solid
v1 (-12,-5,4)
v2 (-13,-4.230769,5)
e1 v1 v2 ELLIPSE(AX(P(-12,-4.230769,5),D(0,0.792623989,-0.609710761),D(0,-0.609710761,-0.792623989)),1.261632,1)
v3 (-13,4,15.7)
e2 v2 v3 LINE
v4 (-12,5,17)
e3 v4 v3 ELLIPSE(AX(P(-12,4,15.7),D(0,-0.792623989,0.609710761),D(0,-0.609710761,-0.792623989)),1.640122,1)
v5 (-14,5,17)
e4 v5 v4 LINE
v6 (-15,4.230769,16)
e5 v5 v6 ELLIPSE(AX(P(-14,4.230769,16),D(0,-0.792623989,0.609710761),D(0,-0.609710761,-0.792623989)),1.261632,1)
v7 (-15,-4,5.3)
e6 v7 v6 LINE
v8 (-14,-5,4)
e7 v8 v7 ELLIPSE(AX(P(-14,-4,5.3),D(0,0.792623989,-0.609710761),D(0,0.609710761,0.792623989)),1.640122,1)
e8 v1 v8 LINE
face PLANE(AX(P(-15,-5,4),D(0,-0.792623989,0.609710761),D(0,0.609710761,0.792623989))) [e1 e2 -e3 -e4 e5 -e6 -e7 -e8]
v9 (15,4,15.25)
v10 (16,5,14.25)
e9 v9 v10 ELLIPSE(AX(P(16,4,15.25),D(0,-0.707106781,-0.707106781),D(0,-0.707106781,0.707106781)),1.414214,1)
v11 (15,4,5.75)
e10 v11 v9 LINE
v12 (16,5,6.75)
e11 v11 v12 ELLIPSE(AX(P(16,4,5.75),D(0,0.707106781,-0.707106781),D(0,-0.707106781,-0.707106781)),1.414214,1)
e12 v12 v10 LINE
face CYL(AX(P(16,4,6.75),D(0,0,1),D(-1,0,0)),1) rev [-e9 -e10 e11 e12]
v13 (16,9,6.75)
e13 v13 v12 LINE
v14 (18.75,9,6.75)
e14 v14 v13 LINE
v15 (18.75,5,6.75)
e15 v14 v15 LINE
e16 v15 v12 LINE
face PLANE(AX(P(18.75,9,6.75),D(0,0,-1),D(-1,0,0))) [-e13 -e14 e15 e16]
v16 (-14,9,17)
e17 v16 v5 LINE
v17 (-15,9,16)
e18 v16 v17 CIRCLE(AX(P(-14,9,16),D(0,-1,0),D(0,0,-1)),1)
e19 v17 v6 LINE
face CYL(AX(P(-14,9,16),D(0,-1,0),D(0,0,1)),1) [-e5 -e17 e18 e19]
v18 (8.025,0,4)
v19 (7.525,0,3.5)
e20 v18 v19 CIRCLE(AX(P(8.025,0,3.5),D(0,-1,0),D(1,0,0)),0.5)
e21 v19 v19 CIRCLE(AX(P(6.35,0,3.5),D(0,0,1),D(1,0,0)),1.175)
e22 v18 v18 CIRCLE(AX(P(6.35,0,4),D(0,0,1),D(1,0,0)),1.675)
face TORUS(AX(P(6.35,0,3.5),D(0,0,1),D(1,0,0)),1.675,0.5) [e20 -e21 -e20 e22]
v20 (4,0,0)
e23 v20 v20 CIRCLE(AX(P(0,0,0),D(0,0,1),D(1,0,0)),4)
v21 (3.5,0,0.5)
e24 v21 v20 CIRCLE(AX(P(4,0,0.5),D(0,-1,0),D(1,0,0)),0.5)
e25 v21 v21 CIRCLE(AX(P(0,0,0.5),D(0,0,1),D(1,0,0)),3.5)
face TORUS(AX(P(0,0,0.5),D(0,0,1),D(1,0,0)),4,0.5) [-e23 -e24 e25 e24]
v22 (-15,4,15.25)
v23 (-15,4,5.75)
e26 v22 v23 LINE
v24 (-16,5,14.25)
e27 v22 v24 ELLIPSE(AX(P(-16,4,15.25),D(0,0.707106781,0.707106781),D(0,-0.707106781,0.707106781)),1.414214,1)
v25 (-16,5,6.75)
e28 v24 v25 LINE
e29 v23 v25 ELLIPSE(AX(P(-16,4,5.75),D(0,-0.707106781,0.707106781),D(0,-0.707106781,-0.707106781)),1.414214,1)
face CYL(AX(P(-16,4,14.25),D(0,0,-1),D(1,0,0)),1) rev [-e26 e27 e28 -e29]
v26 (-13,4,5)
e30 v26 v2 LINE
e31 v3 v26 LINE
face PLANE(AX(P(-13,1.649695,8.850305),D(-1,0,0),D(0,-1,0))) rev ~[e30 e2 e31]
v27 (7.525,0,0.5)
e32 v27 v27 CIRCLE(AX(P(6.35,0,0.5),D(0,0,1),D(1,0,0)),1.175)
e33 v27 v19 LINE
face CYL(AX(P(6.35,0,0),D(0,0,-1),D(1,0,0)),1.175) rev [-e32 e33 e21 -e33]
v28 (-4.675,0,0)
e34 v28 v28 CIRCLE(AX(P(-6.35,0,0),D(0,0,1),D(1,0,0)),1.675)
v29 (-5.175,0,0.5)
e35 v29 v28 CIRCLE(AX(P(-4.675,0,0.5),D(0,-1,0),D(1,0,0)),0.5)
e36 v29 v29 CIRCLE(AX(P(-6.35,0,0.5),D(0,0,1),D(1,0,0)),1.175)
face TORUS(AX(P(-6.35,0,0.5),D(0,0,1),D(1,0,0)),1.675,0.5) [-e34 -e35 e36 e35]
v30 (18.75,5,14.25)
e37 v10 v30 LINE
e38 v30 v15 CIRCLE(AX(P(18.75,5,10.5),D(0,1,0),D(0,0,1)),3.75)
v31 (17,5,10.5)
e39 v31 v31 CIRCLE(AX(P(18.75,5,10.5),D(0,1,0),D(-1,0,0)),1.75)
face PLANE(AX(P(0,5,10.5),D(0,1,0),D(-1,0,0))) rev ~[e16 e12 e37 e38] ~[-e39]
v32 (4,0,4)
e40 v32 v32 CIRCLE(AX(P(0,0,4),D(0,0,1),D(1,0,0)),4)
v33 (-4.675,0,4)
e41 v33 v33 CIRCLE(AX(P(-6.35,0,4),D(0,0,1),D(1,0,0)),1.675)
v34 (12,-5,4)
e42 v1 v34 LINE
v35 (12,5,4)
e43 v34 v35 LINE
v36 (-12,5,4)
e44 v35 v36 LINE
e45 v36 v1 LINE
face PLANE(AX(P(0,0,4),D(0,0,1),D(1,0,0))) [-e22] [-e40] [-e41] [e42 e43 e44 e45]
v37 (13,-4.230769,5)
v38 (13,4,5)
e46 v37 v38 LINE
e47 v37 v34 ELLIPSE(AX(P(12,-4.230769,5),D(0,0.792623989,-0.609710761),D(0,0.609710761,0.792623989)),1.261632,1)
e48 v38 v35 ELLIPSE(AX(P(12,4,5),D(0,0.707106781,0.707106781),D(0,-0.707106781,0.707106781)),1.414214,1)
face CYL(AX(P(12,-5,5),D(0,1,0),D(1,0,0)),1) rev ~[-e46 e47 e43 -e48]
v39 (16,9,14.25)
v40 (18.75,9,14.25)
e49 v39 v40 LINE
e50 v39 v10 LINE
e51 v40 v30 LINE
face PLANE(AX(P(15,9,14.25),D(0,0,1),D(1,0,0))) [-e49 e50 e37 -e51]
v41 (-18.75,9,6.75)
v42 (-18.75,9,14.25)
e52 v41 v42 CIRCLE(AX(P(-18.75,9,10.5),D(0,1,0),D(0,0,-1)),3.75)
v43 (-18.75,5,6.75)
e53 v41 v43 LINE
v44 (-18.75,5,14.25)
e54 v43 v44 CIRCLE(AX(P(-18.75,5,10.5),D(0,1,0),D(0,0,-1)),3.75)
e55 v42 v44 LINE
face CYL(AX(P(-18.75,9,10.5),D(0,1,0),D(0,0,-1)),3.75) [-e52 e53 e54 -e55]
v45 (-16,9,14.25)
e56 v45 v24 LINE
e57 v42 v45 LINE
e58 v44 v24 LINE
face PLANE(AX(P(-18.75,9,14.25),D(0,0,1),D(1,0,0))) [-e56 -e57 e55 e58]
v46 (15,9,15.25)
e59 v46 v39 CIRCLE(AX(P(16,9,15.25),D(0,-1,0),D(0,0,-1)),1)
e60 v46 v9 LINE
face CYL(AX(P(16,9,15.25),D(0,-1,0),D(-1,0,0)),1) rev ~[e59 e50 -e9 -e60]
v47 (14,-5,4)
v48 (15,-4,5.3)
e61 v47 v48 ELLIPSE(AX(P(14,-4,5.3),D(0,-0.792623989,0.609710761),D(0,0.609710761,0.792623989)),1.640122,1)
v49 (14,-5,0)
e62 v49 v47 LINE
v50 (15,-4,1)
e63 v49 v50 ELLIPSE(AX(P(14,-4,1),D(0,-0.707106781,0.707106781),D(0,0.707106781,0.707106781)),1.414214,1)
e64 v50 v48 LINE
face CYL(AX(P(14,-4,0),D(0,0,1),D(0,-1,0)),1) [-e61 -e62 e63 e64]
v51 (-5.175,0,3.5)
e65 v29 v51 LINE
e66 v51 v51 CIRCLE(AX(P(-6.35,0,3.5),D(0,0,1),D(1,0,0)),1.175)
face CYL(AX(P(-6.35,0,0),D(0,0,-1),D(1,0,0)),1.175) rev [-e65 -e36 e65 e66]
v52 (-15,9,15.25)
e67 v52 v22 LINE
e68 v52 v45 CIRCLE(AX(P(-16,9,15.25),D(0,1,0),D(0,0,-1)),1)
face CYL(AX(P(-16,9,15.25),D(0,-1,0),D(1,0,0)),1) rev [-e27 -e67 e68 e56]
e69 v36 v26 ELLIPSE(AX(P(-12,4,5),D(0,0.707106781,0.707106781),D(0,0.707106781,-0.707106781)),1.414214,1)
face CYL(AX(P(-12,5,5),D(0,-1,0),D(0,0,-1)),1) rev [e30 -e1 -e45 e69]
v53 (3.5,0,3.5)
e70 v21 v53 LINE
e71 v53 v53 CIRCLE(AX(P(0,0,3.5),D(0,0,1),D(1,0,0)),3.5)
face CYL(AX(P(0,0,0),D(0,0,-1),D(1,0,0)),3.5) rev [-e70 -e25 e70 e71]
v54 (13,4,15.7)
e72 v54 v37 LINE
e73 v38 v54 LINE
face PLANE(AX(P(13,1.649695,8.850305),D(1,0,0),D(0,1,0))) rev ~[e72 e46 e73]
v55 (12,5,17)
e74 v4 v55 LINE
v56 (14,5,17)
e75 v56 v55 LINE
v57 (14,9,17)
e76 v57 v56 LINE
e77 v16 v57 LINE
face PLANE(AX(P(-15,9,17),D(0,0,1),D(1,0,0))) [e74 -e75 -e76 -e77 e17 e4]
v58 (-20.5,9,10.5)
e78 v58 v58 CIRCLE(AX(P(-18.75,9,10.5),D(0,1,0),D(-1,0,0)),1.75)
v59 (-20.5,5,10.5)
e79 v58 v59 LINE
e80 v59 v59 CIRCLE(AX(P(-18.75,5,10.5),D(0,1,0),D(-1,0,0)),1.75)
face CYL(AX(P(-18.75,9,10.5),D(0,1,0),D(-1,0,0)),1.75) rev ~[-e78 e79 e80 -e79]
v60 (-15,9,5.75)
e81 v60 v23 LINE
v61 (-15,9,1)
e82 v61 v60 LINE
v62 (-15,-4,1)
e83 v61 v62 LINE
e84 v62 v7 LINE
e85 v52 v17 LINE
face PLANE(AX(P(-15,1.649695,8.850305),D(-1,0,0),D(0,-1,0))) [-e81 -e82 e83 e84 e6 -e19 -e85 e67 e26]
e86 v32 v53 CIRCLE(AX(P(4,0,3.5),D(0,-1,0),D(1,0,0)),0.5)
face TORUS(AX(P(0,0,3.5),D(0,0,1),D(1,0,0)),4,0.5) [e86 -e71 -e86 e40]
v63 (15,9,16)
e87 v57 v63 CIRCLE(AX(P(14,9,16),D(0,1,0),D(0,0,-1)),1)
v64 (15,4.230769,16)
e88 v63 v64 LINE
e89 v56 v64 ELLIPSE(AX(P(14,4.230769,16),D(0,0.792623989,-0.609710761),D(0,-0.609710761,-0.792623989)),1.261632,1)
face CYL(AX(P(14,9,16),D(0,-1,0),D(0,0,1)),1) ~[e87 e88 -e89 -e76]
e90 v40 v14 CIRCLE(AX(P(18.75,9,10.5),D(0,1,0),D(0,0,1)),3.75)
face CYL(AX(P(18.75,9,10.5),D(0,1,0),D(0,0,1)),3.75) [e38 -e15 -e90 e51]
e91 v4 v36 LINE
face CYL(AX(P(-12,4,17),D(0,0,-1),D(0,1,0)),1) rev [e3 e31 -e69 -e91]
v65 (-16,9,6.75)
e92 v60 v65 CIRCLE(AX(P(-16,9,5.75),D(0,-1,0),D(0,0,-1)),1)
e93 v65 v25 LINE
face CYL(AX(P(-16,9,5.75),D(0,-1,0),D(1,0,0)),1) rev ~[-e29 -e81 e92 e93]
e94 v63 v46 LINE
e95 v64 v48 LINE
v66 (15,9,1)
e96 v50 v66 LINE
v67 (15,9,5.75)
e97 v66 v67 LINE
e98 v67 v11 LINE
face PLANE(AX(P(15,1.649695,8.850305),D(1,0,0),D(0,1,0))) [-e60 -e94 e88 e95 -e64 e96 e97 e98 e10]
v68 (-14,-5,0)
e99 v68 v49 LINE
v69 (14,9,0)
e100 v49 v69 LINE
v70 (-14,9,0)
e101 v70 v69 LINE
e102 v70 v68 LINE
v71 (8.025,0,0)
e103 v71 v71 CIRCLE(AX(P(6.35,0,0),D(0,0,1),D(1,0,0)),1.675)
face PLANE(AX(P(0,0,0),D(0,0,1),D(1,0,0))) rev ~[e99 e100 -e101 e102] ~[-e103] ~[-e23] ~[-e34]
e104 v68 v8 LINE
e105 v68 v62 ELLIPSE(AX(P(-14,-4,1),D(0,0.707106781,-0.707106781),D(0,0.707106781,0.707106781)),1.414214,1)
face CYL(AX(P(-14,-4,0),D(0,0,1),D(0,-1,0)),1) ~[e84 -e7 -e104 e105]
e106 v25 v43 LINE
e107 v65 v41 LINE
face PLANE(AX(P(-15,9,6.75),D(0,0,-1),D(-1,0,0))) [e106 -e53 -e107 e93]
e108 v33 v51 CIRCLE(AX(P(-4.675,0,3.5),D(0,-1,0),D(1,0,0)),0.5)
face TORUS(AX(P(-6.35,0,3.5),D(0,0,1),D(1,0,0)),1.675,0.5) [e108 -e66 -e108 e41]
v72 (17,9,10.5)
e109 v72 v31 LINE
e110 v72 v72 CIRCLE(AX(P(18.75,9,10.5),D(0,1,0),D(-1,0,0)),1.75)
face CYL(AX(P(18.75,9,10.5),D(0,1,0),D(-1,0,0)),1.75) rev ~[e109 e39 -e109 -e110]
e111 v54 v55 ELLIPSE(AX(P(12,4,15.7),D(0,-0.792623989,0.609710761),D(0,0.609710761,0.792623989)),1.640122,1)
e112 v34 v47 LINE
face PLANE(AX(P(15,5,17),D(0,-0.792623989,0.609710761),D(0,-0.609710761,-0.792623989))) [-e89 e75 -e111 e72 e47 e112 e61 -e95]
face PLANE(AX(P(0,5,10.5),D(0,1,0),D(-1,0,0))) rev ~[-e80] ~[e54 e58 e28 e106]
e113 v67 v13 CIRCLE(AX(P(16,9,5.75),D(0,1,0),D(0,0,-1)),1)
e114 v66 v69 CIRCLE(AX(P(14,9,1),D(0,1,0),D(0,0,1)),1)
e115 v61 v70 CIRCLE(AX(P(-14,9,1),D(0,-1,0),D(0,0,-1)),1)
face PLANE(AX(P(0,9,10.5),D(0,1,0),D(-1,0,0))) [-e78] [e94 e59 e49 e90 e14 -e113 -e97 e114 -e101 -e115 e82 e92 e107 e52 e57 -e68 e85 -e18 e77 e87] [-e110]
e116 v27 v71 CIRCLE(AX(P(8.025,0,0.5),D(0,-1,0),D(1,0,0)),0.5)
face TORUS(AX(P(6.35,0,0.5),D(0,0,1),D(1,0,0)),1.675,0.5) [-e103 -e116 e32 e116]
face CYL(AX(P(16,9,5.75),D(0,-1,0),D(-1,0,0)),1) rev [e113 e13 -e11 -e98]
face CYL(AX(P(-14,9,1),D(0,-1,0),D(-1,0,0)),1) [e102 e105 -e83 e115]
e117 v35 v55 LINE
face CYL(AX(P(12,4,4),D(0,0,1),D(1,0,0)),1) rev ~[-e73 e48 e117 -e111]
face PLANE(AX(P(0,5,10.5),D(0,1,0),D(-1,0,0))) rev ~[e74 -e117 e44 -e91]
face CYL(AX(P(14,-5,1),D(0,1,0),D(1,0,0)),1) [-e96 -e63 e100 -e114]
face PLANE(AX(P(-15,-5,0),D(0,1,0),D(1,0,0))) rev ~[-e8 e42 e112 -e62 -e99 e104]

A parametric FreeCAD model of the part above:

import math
import FreeCAD as App
import Part
import Sketcher
from FreeCAD import Vector


def edges_at(feature, points):
    """Names of the edges that pass closest to the given points."""
    edges = feature.Shape.Edges
    near = lambda p: min(range(len(edges)), key=lambda i: edges[i].distToShape(Part.Vertex(*p))[0])
    return sorted({f"Edge{near(p) + 1}" for p in points})

doc = App.newDocument("Part")
params = doc.addObject("Spreadsheet::Sheet", "Params")
for row, (alias, value) in enumerate([
    ("sketch1_diameter", "7 mm"),
    ("sketch1_diameter2", "2.35 mm"),
    ("sketch1_width", "30 mm"),
    ("sketch1_height", "14 mm"),
    ("pad1_length", "4 mm"),
    ("sketch2_diameter", "3.5 mm"),
    ("sketch2_width", "30 mm"),
    ("sketch2_radius", "3.75 mm"),
    ("sketch2_width2", "3.75 mm"),
    ("pad2_length", "4 mm"),
    ("sketch3_width", "10 mm"),
    ("sketch3_height", "13 mm"),
    ("pad3_length", "2 mm"),
    ("sketch4_width", "10 mm"),
    ("sketch4_height", "13 mm"),
    ("pad4_length", "2 mm"),
    ("fillet_radius", "1 mm"),
    ("fillet2_radius", "0.5 mm"),
], start=1):
    params.set(f"A{row}", alias)
    params.set(f"B{row}", "=" + value)
    params.setAlias(f"B{row}", alias)

body = doc.addObject("PartDesign::Body", "Body")

# Sketch on XY plane
sketch1 = body.newObject("Sketcher::SketchObject", "Sketch")
sketch1.AttachmentSupport = (doc.getObject("XY_Plane"), [""])
sketch1.MapMode = "FlatFace"
sketch1.addGeometry(Part.LineSegment(Vector(-15, -5, 0), Vector(15, -5, 0)), False)
sketch1.addGeometry(Part.LineSegment(Vector(15, -5, 0), Vector(15, 9, 0)), False)
sketch1.addGeometry(Part.LineSegment(Vector(15, 9, 0), Vector(-15, 9, 0)), False)
sketch1.addGeometry(Part.LineSegment(Vector(-15, 9, 0), Vector(-15, -5, 0)), False)
sketch1.addGeometry(Part.Circle(Vector(-6.35, 0, 0), Vector(0, 0, 1), 1.175), False)
sketch1.addGeometry(Part.Circle(Vector(0, 0, 0), Vector(0, 0, 1), 3.5), False)
sketch1.addGeometry(Part.Circle(Vector(6.35, 0, 0), Vector(0, 0, 1), 1.175), False)
sketch1.addConstraint(Sketcher.Constraint("Coincident", 0, 2, 1, 1))
sketch1.addConstraint(Sketcher.Constraint("Coincident", 1, 2, 2, 1))
sketch1.addConstraint(Sketcher.Constraint("Coincident", 2, 2, 3, 1))
sketch1.addConstraint(Sketcher.Constraint("Coincident", 3, 2, 0, 1))
sketch1.addConstraint(Sketcher.Constraint("Horizontal", 0))
sketch1.addConstraint(Sketcher.Constraint("Vertical", 1))
sketch1.addConstraint(Sketcher.Constraint("Horizontal", 2))
sketch1.addConstraint(Sketcher.Constraint("Vertical", 3))
sketch1.addConstraint(Sketcher.Constraint("Coincident", 5, 3, -1, 1))
sketch1.addConstraint(Sketcher.Constraint("Equal", 4, 6))
sketch1.addConstraint(Sketcher.Constraint("Symmetric", 4, 3, 6, 3, -1, 1))
sketch1.addConstraint(Sketcher.Constraint("PointOnObject", 4, 3, -1))
sketch1.addConstraint(Sketcher.Constraint("Diameter", 5, 7.0))
sketch1.addConstraint(Sketcher.Constraint("Diameter", 4, 2.35))
sketch1.addConstraint(Sketcher.Constraint("DistanceX", 0, 1, 0, 2, 30.0))
sketch1.addConstraint(Sketcher.Constraint("DistanceY", 1, 1, 1, 2, 14.0))
sketch1.addConstraint(Sketcher.Constraint("DistanceX", -1, 1, 0, 2, 15.0))
sketch1.addConstraint(Sketcher.Constraint("DistanceY", 0, 2, -1, 1, 5.0))
sketch1.addConstraint(Sketcher.Constraint("DistanceX", 4, 3, 6, 3, 12.7))
sketch1.setExpression("Constraints[12]", "Params.sketch1_diameter")
sketch1.setExpression("Constraints[13]", "Params.sketch1_diameter2")
sketch1.setExpression("Constraints[14]", "Params.sketch1_width")
sketch1.setExpression("Constraints[15]", "Params.sketch1_height")
pad1 = body.newObject("PartDesign::Pad", "Pad")
pad1.Profile = sketch1
pad1.setExpression("Length", "Params.pad1_length")

# Sketch on XZ plane
sketch2 = body.newObject("Sketcher::SketchObject", "Sketch001")
sketch2.AttachmentSupport = (doc.getObject("XZ_Plane"), [""])
sketch2.MapMode = "FlatFace"
sketch2.AttachmentOffset = App.Placement(Vector(0, 0, -9), App.Rotation())
sketch2.addGeometry(Part.LineSegment(Vector(15, 4, 0), Vector(-15, 4, 0)), False)
sketch2.addGeometry(Part.LineSegment(Vector(-15, 4, 0), Vector(-15, 6.75, 0)), False)
sketch2.addGeometry(Part.LineSegment(Vector(-15, 6.75, 0), Vector(-18.75, 6.75, 0)), False)
sketch2.addGeometry(Part.ArcOfCircle(Part.Circle(Vector(-18.75, 10.5, 0), Vector(0, 0, 1), 3.75), math.radians(90), math.radians(270)), False)
sketch2.addGeometry(Part.LineSegment(Vector(-18.75, 14.25, 0), Vector(-15, 14.25, 0)), False)
sketch2.addGeometry(Part.LineSegment(Vector(-15, 14.25, 0), Vector(-15, 17, 0)), False)
sketch2.addGeometry(Part.LineSegment(Vector(-15, 17, 0), Vector(15, 17, 0)), False)
sketch2.addGeometry(Part.LineSegment(Vector(15, 17, 0), Vector(15, 14.25, 0)), False)
sketch2.addGeometry(Part.LineSegment(Vector(15, 14.25, 0), Vector(18.75, 14.25, 0)), False)
sketch2.addGeometry(Part.ArcOfCircle(Part.Circle(Vector(18.75, 10.5, 0), Vector(0, 0, 1), 3.75), math.radians(-90), math.radians(90)), False)
sketch2.addGeometry(Part.LineSegment(Vector(18.75, 6.75, 0), Vector(15, 6.75, 0)), False)
sketch2.addGeometry(Part.LineSegment(Vector(15, 6.75, 0), Vector(15, 4, 0)), False)
sketch2.addGeometry(Part.Circle(Vector(18.75, 10.5, 0), Vector(0, 0, 1), 1.75), False)
sketch2.addGeometry(Part.Circle(Vector(-18.75, 10.5, 0), Vector(0, 0, 1), 1.75), False)
sketch2.addConstraint(Sketcher.Constraint("Coincident", 0, 2, 1, 1))
sketch2.addConstraint(Sketcher.Constraint("Coincident", 1, 2, 2, 1))
sketch2.addConstraint(Sketcher.Constraint("Tangent", 2, 2, 3, 2))
sketch2.addConstraint(Sketcher.Constraint("Tangent", 3, 1, 4, 1))
sketch2.addConstraint(Sketcher.Constraint("Coincident", 4, 2, 5, 1))
sketch2.addConstraint(Sketcher.Constraint("Coincident", 5, 2, 6, 1))
sketch2.addConstraint(Sketcher.Constraint("Coincident", 6, 2, 7, 1))
sketch2.addConstraint(Sketcher.Constraint("Coincident", 7, 2, 8, 1))
sketch2.addConstraint(Sketcher.Constraint("Tangent", 8, 2, 9, 2))
sketch2.addConstraint(Sketcher.Constraint("Tangent", 9, 1, 10, 1))
sketch2.addConstraint(Sketcher.Constraint("Coincident", 10, 2, 11, 1))
sketch2.addConstraint(Sketcher.Constraint("Coincident", 11, 2, 0, 1))
sketch2.addConstraint(Sketcher.Constraint("Horizontal", 0))
sketch2.addConstraint(Sketcher.Constraint("Vertical", 1))
sketch2.addConstraint(Sketcher.Constraint("Horizontal", 2))
sketch2.addConstraint(Sketcher.Constraint("Horizontal", 4))
sketch2.addConstraint(Sketcher.Constraint("Vertical", 5))
sketch2.addConstraint(Sketcher.Constraint("Horizontal", 6))
sketch2.addConstraint(Sketcher.Constraint("Vertical", 7))
sketch2.addConstraint(Sketcher.Constraint("Horizontal", 8))
sketch2.addConstraint(Sketcher.Constraint("Horizontal", 10))
sketch2.addConstraint(Sketcher.Constraint("Vertical", 11))
sketch2.addConstraint(Sketcher.Constraint("Coincident", 12, 3, 9, 3))
sketch2.addConstraint(Sketcher.Constraint("Coincident", 13, 3, 3, 3))
sketch2.addConstraint(Sketcher.Constraint("Equal", 3, 9))
sketch2.addConstraint(Sketcher.Constraint("Equal", 12, 13))
sketch2.addConstraint(Sketcher.Constraint("Symmetric", 3, 3, 9, 3, -2))
sketch2.addConstraint(Sketcher.Constraint("Vertical", 1, 2, 4, 2))
sketch2.addConstraint(Sketcher.Constraint("Vertical", 7, 2, 10, 2))
sketch2.addConstraint(Sketcher.Constraint("Equal", 4, 8))
sketch2.addConstraint(Sketcher.Constraint("Equal", 1, 5))
sketch2.addConstraint(Sketcher.Constraint("Diameter", 12, 3.5))
sketch2.addConstraint(Sketcher.Constraint("DistanceX", 0, 2, 0, 1, 30.0))
sketch2.addConstraint(Sketcher.Constraint("Radius", 3, 3.75))
sketch2.addConstraint(Sketcher.Constraint("DistanceY", -1, 1, 0, 2, 4.0))
sketch2.addConstraint(Sketcher.Constraint("DistanceY", -1, 1, 5, 2, 17.0))
sketch2.addConstraint(Sketcher.Constraint("DistanceX", 2, 2, 2, 1, 3.75))
sketch2.setExpression("Constraints[31]", "Params.sketch2_diameter")
sketch2.setExpression("Constraints[32]", "Params.sketch2_width")
sketch2.setExpression("Constraints[33]", "Params.sketch2_radius")
sketch2.setExpression("Constraints[36]", "Params.sketch2_width2")
pad2 = body.newObject("PartDesign::Pad", "Pad001")
pad2.Profile = sketch2
pad2.setExpression("Length", "Params.pad2_length")

# Sketch on YZ plane
sketch3 = body.newObject("Sketcher::SketchObject", "Sketch002")
sketch3.AttachmentSupport = (doc.getObject("YZ_Plane"), [""])
sketch3.MapMode = "FlatFace"
sketch3.AttachmentOffset = App.Placement(Vector(0, 0, -15), App.Rotation())
sketch3.addGeometry(Part.LineSegment(Vector(-5, 4, 0), Vector(5, 17, 0)), False)
sketch3.addGeometry(Part.LineSegment(Vector(5, 17, 0), Vector(5, 4, 0)), False)
sketch3.addGeometry(Part.LineSegment(Vector(5, 4, 0), Vector(-5, 4, 0)), False)
sketch3.addConstraint(Sketcher.Constraint("Coincident", 0, 2, 1, 1))
sketch3.addConstraint(Sketcher.Constraint("Coincident", 1, 2, 2, 1))
sketch3.addConstraint(Sketcher.Constraint("Coincident", 2, 2, 0, 1))
sketch3.addConstraint(Sketcher.Constraint("Vertical", 1))
sketch3.addConstraint(Sketcher.Constraint("Horizontal", 2))
sketch3.addConstraint(Sketcher.Constraint("DistanceX", 2, 2, 2, 1, 10.0))
sketch3.addConstraint(Sketcher.Constraint("DistanceY", 1, 2, 1, 1, 13.0))
sketch3.addConstraint(Sketcher.Constraint("DistanceX", -1, 1, 0, 2, 5.0))
sketch3.addConstraint(Sketcher.Constraint("DistanceY", -1, 1, 0, 2, 17.0))
sketch3.setExpression("Constraints[5]", "Params.sketch3_width")
sketch3.setExpression("Constraints[6]", "Params.sketch3_height")
pad3 = body.newObject("PartDesign::Pad", "Pad002")
pad3.Profile = sketch3
pad3.setExpression("Length", "Params.pad3_length")

# Sketch on YZ plane
sketch4 = body.newObject("Sketcher::SketchObject", "Sketch003")
sketch4.AttachmentSupport = (doc.getObject("YZ_Plane"), [""])
sketch4.MapMode = "FlatFace"
sketch4.AttachmentOffset = App.Placement(Vector(0, 0, 15), App.Rotation())
sketch4.addGeometry(Part.LineSegment(Vector(5, 17, 0), Vector(-5, 4, 0)), False)
sketch4.addGeometry(Part.LineSegment(Vector(-5, 4, 0), Vector(5, 4, 0)), False)
sketch4.addGeometry(Part.LineSegment(Vector(5, 4, 0), Vector(5, 17, 0)), False)
sketch4.addConstraint(Sketcher.Constraint("Coincident", 0, 2, 1, 1))
sketch4.addConstraint(Sketcher.Constraint("Coincident", 1, 2, 2, 1))
sketch4.addConstraint(Sketcher.Constraint("Coincident", 2, 2, 0, 1))
sketch4.addConstraint(Sketcher.Constraint("Horizontal", 1))
sketch4.addConstraint(Sketcher.Constraint("Vertical", 2))
sketch4.addConstraint(Sketcher.Constraint("DistanceX", 1, 1, 1, 2, 10.0))
sketch4.addConstraint(Sketcher.Constraint("DistanceY", 2, 1, 2, 2, 13.0))
sketch4.addConstraint(Sketcher.Constraint("DistanceX", 0, 2, -1, 1, 5.0))
sketch4.addConstraint(Sketcher.Constraint("DistanceY", -1, 1, 0, 2, 4.0))
sketch4.setExpression("Constraints[5]", "Params.sketch4_width")
sketch4.setExpression("Constraints[6]", "Params.sketch4_height")
pad4 = body.newObject("PartDesign::Pad", "Pad003")
pad4.Profile = sketch4
pad4.setExpression("Length", "Params.pad4_length")
pad4.Reversed = True
doc.recompute()

fillet = body.newObject("PartDesign::Fillet", "Fillet")
fillet.Base = (pad4, edges_at(pad4, [
    (13, 5, 10.5),
    (-13, 5, 10.5),
    (-13, 0, 4),
    (13, 0, 4),
    (15, 7, 14.25),
    (15, 7, 6.75),
    (-15, 7, 6.75),
    (-15, 7, 14.25),
    (-15, 5, 10.5),
    (15, 5, 10.5),
    (15, -5, 2),
    (-15, -5, 2),
    (15, 7, 17),
    (15, 2, 0),
    (-15, 7, 17),
    (-15, 2, 0),
]))
fillet.setExpression("Radius", "Params.fillet_radius")
doc.recompute()

fillet2 = body.newObject("PartDesign::Fillet", "Fillet001")
fillet2.Base = (fillet, edges_at(fillet, [
    (7.525, 0, 2),
    (5.175, 0, 0),
    (5.175, 0, 4),
    (-5.175, 0, 2),
    (-7.525, 0, 0),
    (-7.525, 0, 4),
    (3.5, 0, 2),
    (-3.5, 0, 0),
    (-3.5, 0, 4),
]))
fillet2.setExpression("Radius", "Params.fillet2_radius")

doc.recompute()
